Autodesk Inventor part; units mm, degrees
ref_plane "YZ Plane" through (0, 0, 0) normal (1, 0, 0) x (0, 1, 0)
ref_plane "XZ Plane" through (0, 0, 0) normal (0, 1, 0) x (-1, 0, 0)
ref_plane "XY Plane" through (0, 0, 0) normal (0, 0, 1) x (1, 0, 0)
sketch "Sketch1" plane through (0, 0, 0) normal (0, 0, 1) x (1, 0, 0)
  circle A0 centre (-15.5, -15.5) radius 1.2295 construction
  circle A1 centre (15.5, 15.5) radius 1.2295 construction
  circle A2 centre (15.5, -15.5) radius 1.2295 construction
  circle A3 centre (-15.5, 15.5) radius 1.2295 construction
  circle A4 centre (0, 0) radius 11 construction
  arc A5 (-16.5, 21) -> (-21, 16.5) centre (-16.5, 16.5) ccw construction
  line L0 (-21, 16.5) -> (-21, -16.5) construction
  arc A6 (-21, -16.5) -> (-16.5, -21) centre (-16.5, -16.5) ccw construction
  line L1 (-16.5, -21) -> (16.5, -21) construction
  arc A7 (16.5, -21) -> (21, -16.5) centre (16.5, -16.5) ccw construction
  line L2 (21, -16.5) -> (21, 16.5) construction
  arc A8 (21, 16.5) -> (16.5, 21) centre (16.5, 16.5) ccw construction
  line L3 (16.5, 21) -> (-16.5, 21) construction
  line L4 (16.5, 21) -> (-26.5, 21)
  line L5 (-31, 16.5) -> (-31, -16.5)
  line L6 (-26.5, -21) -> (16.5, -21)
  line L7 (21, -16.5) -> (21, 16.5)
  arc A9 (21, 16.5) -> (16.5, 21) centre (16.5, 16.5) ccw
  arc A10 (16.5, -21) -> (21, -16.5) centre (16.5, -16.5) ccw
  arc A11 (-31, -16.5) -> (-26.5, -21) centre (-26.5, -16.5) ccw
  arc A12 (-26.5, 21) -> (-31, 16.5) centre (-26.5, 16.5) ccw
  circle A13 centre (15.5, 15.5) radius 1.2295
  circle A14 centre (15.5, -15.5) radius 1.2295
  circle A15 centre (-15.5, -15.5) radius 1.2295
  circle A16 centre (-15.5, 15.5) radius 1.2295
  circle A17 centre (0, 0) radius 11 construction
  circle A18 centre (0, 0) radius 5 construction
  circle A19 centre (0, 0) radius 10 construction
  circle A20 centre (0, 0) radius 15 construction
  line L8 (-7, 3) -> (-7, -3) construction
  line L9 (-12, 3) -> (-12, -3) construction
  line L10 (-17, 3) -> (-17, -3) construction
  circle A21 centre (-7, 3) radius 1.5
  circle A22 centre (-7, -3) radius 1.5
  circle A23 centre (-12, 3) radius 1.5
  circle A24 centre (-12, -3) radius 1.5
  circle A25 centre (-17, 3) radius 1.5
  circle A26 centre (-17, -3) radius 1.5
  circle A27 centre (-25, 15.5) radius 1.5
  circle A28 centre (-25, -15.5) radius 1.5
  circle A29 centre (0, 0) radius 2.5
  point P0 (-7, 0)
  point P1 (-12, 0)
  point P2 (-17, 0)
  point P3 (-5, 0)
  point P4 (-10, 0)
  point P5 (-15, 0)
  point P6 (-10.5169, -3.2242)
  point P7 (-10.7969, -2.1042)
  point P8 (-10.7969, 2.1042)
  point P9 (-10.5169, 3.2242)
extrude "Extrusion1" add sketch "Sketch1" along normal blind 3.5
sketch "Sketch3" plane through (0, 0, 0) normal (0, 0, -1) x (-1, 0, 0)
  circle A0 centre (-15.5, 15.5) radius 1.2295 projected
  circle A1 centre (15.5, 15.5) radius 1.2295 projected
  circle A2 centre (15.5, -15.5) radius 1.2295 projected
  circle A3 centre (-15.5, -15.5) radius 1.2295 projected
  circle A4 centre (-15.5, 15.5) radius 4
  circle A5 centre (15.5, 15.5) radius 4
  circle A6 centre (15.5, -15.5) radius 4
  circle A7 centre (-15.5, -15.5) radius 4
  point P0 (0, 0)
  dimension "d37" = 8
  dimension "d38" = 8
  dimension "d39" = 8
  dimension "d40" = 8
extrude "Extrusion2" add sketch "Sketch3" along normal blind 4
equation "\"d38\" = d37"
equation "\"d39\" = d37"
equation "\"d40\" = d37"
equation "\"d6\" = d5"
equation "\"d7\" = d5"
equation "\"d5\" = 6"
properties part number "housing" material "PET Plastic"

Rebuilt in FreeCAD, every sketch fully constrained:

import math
import FreeCAD as App
import Part
import Sketcher
from FreeCAD import Vector

doc = App.newDocument("Part")
body = doc.addObject("PartDesign::Body", "Body")

# Sketch on XY plane
sketch1 = body.newObject("Sketcher::SketchObject", "Sketch")
sketch1.AttachmentSupport = (doc.getObject("XY_Plane"), [""])
sketch1.MapMode = "FlatFace"
sketch1.addGeometry([
    Part.ArcOfCircle(Part.Circle(Vector(16.5, 16.5, 0), Vector(0, 0, 1), 4.5), math.radians(0), math.radians(90)),  # 0
    Part.LineSegment(Vector(16.5, 21, 0), Vector(-26.5, 21, 0)),  # 1
    Part.ArcOfCircle(Part.Circle(Vector(-26.5, 16.5, 0), Vector(0, 0, 1), 4.5), math.radians(90), math.radians(180)),  # 2
    Part.LineSegment(Vector(-31, 16.5, 0), Vector(-31, -16.5, 0)),  # 3
    Part.ArcOfCircle(Part.Circle(Vector(-26.5, -16.5, 0), Vector(0, 0, 1), 4.5), math.radians(180), math.radians(270)),  # 4
    Part.LineSegment(Vector(-26.5, -21, 0), Vector(16.5, -21, 0)),  # 5
    Part.ArcOfCircle(Part.Circle(Vector(16.5, -16.5, 0), Vector(0, 0, 1), 4.5), math.radians(-90), math.radians(0)),  # 6
    Part.LineSegment(Vector(21, -16.5, 0), Vector(21, 16.5, 0)),  # 7
    Part.Circle(Vector(-25, -15.5, 0), Vector(0, 0, 1), 1.5),  # 8
    Part.Circle(Vector(-15.5, -15.5, 0), Vector(0, 0, 1), 1.2),  # 9
    Part.Circle(Vector(-17, -3, 0), Vector(0, 0, 1), 1.5),  # 10
    Part.Circle(Vector(-12, -3, 0), Vector(0, 0, 1), 1.5),  # 11
    Part.Circle(Vector(-7, -3, 0), Vector(0, 0, 1), 1.5),  # 12
    Part.Circle(Vector(15.5, -15.5, 0), Vector(0, 0, 1), 1.2),  # 13
    Part.Circle(Vector(-17, 3, 0), Vector(0, 0, 1), 1.5),  # 14
    Part.Circle(Vector(-12, 3, 0), Vector(0, 0, 1), 1.5),  # 15
    Part.Circle(Vector(-7, 3, 0), Vector(0, 0, 1), 1.5),  # 16
    Part.Circle(Vector(-25, 15.5, 0), Vector(0, 0, 1), 1.5),  # 17
    Part.Circle(Vector(-15.5, 15.5, 0), Vector(0, 0, 1), 1.2),  # 18
    Part.Circle(Vector(0, 0, 0), Vector(0, 0, 1), 2.5),  # 19
    Part.Circle(Vector(15.5, 15.5, 0), Vector(0, 0, 1), 1.2),  # 20
], False)
sketch1.addConstraint([
    Sketcher.Constraint("Tangent", 0, 2, 1, 1),
    Sketcher.Constraint("Tangent", 1, 2, 2, 1),
    Sketcher.Constraint("Tangent", 2, 2, 3, 1),
    Sketcher.Constraint("Tangent", 3, 2, 4, 1),
    Sketcher.Constraint("Tangent", 4, 2, 5, 1),
    Sketcher.Constraint("Tangent", 5, 2, 6, 1),
    Sketcher.Constraint("Tangent", 6, 2, 7, 1),
    Sketcher.Constraint("Tangent", 7, 2, 0, 1),
    Sketcher.Constraint("Horizontal", 1),
    Sketcher.Constraint("Vertical", 3),
    Sketcher.Constraint("Horizontal", 5),
    Sketcher.Constraint("Vertical", 7),
    Sketcher.Constraint("Coincident", 19, 3, -1, 1),
    Sketcher.Constraint("Equal", 0, 2),
    Sketcher.Constraint("Equal", 2, 4),
    Sketcher.Constraint("Equal", 4, 6),
    Sketcher.Constraint("Equal", 8, 10),
    Sketcher.Constraint("Equal", 10, 11),
    Sketcher.Constraint("Equal", 11, 12),
    Sketcher.Constraint("Equal", 9, 13),
    Sketcher.Constraint("Equal", 12, 14),
    Sketcher.Constraint("Equal", 14, 15),
    Sketcher.Constraint("Equal", 15, 16),
    Sketcher.Constraint("Equal", 16, 17),
    Sketcher.Constraint("Equal", 13, 18),
    Sketcher.Constraint("Equal", 18, 20),
    Sketcher.Constraint("Symmetric", 13, 3, 18, 3, -1, 1),
    Sketcher.Constraint("Symmetric", 9, 3, 20, 3, -1, 1),
    Sketcher.Constraint("Symmetric", 9, 3, 13, 3, -2),
    Sketcher.Constraint("Symmetric", 10, 3, 14, 3, -1),
    Sketcher.Constraint("Symmetric", 11, 3, 15, 3, -1),
    Sketcher.Constraint("Symmetric", 12, 3, 16, 3, -1),
    Sketcher.Constraint("Symmetric", 8, 3, 17, 3, -1),
    Sketcher.Constraint("Horizontal", 8, 3, 9, 3),
    Sketcher.Constraint("Horizontal", 10, 3, 11, 3),
    Sketcher.Constraint("Horizontal", 11, 3, 12, 3),
    Sketcher.Constraint("Diameter", 8, 3.0),
    Sketcher.Constraint("Diameter", 19, 5.0),
    Sketcher.Constraint("Radius", 0, 4.5),
    Sketcher.Constraint("DistanceX", 1, 2, 1, 1, 43.0),
    Sketcher.Constraint("DistanceY", 3, 2, 3, 1, 33.0),
    Sketcher.Constraint("Diameter", 9, 2.459),
    Sketcher.Constraint("DistanceX", 8, 3, -1, 1, 25.0),
    Sketcher.Constraint("DistanceX", 10, 3, -1, 1, 17.0),
    Sketcher.Constraint("DistanceY", 10, 3, -1, 1, 3.0),
    Sketcher.Constraint("DistanceX", 11, 3, -1, 1, 12.0),
    Sketcher.Constraint("DistanceX", 12, 3, -1, 1, 7.0),
    Sketcher.Constraint("DistanceY", -1, 1, 0, 2, 21.0),
    Sketcher.Constraint("DistanceX", 2, 2, -1, 1, 31.0),
    Sketcher.Constraint("DistanceY", 4, 3, 8, 3, 1.0),
    Sketcher.Constraint("DistanceX", 4, 3, 9, 3, 11.0),
])
pad1 = body.newObject("PartDesign::Pad", "Pad")
pad1.Profile = sketch1
pad1.Length = 3.5

# Sketch on XY plane
sketch2 = body.newObject("Sketcher::SketchObject", "Sketch001")
sketch2.AttachmentSupport = (doc.getObject("XY_Plane"), [""])
sketch2.MapMode = "FlatFace"
sketch2.addGeometry([
    Part.Circle(Vector(15.5, 15.5, 0), Vector(0, 0, 1), 4),  # 0
    Part.Circle(Vector(15.5, 15.5, 0), Vector(0, 0, 1), 1.2),  # 1
    Part.Circle(Vector(-15.5, 15.5, 0), Vector(0, 0, 1), 4),  # 2
    Part.Circle(Vector(-15.5, 15.5, 0), Vector(0, 0, 1), 1.2),  # 3
    Part.Circle(Vector(-15.5, -15.5, 0), Vector(0, 0, 1), 4),  # 4
    Part.Circle(Vector(-15.5, -15.5, 0), Vector(0, 0, 1), 1.2),  # 5
    Part.Circle(Vector(15.5, -15.5, 0), Vector(0, 0, 1), 4),  # 6
    Part.Circle(Vector(15.5, -15.5, 0), Vector(0, 0, 1), 1.2),  # 7
], False)
sketch2.addConstraint([
    Sketcher.Constraint("Coincident", 1, 3, 0, 3),
    Sketcher.Constraint("Coincident", 3, 3, 2, 3),
    Sketcher.Constraint("Coincident", 5, 3, 4, 3),
    Sketcher.Constraint("Coincident", 7, 3, 6, 3),
    Sketcher.Constraint("Equal", 0, 2),
    Sketcher.Constraint("Equal", 1, 3),
    Sketcher.Constraint("Equal", 2, 4),
    Sketcher.Constraint("Equal", 3, 5),
    Sketcher.Constraint("Equal", 4, 6),
    Sketcher.Constraint("Equal", 5, 7),
    Sketcher.Constraint("Symmetric", 0, 3, 4, 3, -1, 1),
    Sketcher.Constraint("Symmetric", 2, 3, 6, 3, -1, 1),
    Sketcher.Constraint("Symmetric", 0, 3, 2, 3, -2),
    Sketcher.Constraint("Diameter", 0, 8.0),
    Sketcher.Constraint("Diameter", 1, 2.459),
    Sketcher.Constraint("DistanceX", 2, 3, 0, 3, 31.0),
    Sketcher.Constraint("DistanceY", 4, 3, 2, 3, 31.0),
])
pad2 = body.newObject("PartDesign::Pad", "Pad001")
pad2.Profile = sketch2
pad2.Length = 4
pad2.Reversed = True

doc.recompute()
